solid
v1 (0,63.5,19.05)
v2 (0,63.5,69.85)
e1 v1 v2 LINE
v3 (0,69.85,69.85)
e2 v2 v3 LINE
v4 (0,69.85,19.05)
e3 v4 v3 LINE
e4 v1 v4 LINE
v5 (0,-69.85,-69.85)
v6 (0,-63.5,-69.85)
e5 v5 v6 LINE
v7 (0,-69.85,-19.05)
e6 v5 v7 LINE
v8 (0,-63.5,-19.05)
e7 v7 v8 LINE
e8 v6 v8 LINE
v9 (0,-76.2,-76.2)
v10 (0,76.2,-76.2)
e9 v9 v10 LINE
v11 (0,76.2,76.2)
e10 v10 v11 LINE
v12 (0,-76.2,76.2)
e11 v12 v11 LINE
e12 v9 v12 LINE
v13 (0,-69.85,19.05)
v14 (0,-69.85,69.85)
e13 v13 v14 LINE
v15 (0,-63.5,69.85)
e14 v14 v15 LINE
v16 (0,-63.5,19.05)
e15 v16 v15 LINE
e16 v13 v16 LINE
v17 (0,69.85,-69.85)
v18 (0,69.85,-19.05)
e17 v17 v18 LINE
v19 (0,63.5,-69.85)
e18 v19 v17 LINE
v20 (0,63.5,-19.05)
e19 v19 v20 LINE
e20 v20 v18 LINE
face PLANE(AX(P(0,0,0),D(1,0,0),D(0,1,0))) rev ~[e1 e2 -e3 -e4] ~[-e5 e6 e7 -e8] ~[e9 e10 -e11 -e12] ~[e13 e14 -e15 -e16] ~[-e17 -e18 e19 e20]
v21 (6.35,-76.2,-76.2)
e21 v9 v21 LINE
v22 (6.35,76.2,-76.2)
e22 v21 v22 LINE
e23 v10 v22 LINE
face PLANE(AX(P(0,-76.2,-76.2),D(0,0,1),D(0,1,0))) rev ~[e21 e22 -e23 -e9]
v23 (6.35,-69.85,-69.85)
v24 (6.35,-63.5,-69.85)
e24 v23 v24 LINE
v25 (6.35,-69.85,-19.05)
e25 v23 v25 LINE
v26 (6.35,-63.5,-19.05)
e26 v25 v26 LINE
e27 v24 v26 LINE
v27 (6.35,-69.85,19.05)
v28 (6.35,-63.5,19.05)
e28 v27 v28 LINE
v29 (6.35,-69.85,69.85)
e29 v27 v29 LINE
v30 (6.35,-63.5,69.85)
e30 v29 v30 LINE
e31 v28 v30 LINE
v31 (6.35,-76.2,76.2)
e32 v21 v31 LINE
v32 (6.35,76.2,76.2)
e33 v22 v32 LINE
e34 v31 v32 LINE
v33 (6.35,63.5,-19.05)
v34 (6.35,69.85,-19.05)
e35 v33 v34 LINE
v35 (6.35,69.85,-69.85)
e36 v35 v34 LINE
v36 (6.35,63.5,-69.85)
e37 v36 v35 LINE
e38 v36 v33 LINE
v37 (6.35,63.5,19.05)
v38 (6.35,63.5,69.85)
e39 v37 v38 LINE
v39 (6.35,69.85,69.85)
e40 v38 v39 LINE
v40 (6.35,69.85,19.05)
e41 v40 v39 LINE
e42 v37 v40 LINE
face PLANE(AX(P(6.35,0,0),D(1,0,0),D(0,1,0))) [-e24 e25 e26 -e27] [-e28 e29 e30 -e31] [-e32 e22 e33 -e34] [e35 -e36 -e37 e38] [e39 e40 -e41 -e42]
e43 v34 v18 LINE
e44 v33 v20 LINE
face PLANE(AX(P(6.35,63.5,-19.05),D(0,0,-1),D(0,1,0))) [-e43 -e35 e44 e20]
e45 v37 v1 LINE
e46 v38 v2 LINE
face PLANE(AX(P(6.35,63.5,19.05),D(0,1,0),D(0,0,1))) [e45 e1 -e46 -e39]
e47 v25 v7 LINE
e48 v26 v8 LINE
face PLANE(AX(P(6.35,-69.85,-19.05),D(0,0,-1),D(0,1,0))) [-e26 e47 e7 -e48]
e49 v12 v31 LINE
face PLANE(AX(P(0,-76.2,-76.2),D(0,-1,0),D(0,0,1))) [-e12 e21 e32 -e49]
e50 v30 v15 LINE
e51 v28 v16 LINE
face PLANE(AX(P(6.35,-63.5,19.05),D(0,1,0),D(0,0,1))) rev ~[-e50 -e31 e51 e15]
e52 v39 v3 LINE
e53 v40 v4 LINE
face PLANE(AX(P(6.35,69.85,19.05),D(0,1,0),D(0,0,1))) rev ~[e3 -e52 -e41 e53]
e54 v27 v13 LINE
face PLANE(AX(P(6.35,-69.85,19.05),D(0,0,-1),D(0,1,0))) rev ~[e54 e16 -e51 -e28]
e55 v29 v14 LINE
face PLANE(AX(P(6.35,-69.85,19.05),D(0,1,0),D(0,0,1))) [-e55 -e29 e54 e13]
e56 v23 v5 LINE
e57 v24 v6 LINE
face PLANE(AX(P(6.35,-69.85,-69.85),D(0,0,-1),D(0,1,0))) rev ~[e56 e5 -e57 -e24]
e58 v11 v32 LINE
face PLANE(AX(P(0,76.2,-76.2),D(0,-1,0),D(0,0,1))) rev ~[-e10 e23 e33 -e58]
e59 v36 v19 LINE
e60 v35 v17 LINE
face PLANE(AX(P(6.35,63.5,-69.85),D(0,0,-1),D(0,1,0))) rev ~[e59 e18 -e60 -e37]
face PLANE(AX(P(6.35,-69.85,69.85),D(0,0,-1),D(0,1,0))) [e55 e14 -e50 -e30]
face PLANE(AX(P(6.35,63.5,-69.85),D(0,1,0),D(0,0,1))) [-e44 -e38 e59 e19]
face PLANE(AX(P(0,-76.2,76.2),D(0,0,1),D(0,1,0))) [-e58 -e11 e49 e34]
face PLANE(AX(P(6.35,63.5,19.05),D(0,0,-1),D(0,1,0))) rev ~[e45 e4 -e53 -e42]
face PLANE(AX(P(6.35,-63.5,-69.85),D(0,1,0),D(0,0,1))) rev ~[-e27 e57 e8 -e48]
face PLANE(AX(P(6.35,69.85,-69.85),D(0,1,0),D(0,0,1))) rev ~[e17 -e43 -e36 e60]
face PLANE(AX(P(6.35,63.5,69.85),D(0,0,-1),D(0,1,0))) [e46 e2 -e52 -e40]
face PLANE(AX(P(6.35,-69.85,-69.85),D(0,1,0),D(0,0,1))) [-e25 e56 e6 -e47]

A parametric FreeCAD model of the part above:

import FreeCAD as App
import Part
import Sketcher
from FreeCAD import Vector
Q = App.Units.Quantity

doc = App.newDocument("Part")
body = doc.addObject("PartDesign::Body", "Body")

# Sketch on YZ plane
sketch1 = body.newObject("Sketcher::SketchObject", "Sketch")
sketch1.AttachmentSupport = (doc.getObject("YZ_Plane"), [""])
sketch1.MapMode = "FlatFace"
sketch1.addGeometry(Part.LineSegment(Vector(-76, 76, 0), Vector(-76, -76, 0)), False)
sketch1.addGeometry(Part.LineSegment(Vector(-76, -76, 0), Vector(76, -76, 0)), False)
sketch1.addGeometry(Part.LineSegment(Vector(76, -76, 0), Vector(76, 76, 0)), False)
sketch1.addGeometry(Part.LineSegment(Vector(76, 76, 0), Vector(-76, 76, 0)), False)
sketch1.addConstraint(Sketcher.Constraint("Coincident", 0, 2, 1, 1))
sketch1.addConstraint(Sketcher.Constraint("Coincident", 1, 2, 2, 1))
sketch1.addConstraint(Sketcher.Constraint("Coincident", 2, 2, 3, 1))
sketch1.addConstraint(Sketcher.Constraint("Coincident", 3, 2, 0, 1))
sketch1.addConstraint(Sketcher.Constraint("Vertical", 0))
sketch1.addConstraint(Sketcher.Constraint("Horizontal", 1))
sketch1.addConstraint(Sketcher.Constraint("Vertical", 2))
sketch1.addConstraint(Sketcher.Constraint("Horizontal", 3))
sketch1.addConstraint(Sketcher.Constraint("Symmetric", 0, 2, 2, 2, -1, 1))
sketch1.addConstraint(Sketcher.Constraint("Equal", 3, 0))
sketch1.addConstraint(Sketcher.Constraint("DistanceX", 1, 1, 1, 2, Q("6 in")))
pad1 = body.newObject("PartDesign::Pad", "Pad")
pad1.Profile = sketch1
pad1.Length = Q("0.25 in")

# Sketch on YZ plane
sketch2 = body.newObject("Sketcher::SketchObject", "Sketch001")
sketch2.AttachmentSupport = (doc.getObject("YZ_Plane"), [""])
sketch2.MapMode = "FlatFace"
sketch2.AttachmentOffset = App.Placement(Vector(0, 0, 0.25 * 25.4), App.Rotation())
sketch2.addGeometry(Part.LineSegment(Vector(-70, 70, 0), Vector(-70, 19, 0)), False)
sketch2.addGeometry(Part.LineSegment(Vector(-70, 19, 0), Vector(-64, 19, 0)), False)
sketch2.addGeometry(Part.LineSegment(Vector(-64, 19, 0), Vector(-64, 70, 0)), False)
sketch2.addGeometry(Part.LineSegment(Vector(-64, 70, 0), Vector(-70, 70, 0)), False)
sketch2.addGeometry(Part.LineSegment(Vector(64, 70, 0), Vector(64, 19, 0)), False)
sketch2.addGeometry(Part.LineSegment(Vector(64, 19, 0), Vector(70, 19, 0)), False)
sketch2.addGeometry(Part.LineSegment(Vector(70, 19, 0), Vector(70, 70, 0)), False)
sketch2.addGeometry(Part.LineSegment(Vector(70, 70, 0), Vector(64, 70, 0)), False)
sketch2.addGeometry(Part.LineSegment(Vector(-70, -19, 0), Vector(-70, -70, 0)), False)
sketch2.addGeometry(Part.LineSegment(Vector(-70, -70, 0), Vector(-64, -70, 0)), False)
sketch2.addGeometry(Part.LineSegment(Vector(-64, -70, 0), Vector(-64, -19, 0)), False)
sketch2.addGeometry(Part.LineSegment(Vector(-64, -19, 0), Vector(-70, -19, 0)), False)
sketch2.addGeometry(Part.LineSegment(Vector(64, -19, 0), Vector(64, -70, 0)), False)
sketch2.addGeometry(Part.LineSegment(Vector(64, -70, 0), Vector(70, -70, 0)), False)
sketch2.addGeometry(Part.LineSegment(Vector(70, -70, 0), Vector(70, -19, 0)), False)
sketch2.addGeometry(Part.LineSegment(Vector(70, -19, 0), Vector(64, -19, 0)), False)
sketch2.addConstraint(Sketcher.Constraint("Coincident", 0, 2, 1, 1))
sketch2.addConstraint(Sketcher.Constraint("Coincident", 1, 2, 2, 1))
sketch2.addConstraint(Sketcher.Constraint("Coincident", 2, 2, 3, 1))
sketch2.addConstraint(Sketcher.Constraint("Coincident", 3, 2, 0, 1))
sketch2.addConstraint(Sketcher.Constraint("Coincident", 4, 2, 5, 1))
sketch2.addConstraint(Sketcher.Constraint("Coincident", 5, 2, 6, 1))
sketch2.addConstraint(Sketcher.Constraint("Coincident", 6, 2, 7, 1))
sketch2.addConstraint(Sketcher.Constraint("Coincident", 7, 2, 4, 1))
sketch2.addConstraint(Sketcher.Constraint("Coincident", 8, 2, 9, 1))
sketch2.addConstraint(Sketcher.Constraint("Coincident", 9, 2, 10, 1))
sketch2.addConstraint(Sketcher.Constraint("Coincident", 10, 2, 11, 1))
sketch2.addConstraint(Sketcher.Constraint("Coincident", 11, 2, 8, 1))
sketch2.addConstraint(Sketcher.Constraint("Coincident", 12, 2, 13, 1))
sketch2.addConstraint(Sketcher.Constraint("Coincident", 13, 2, 14, 1))
sketch2.addConstraint(Sketcher.Constraint("Coincident", 14, 2, 15, 1))
sketch2.addConstraint(Sketcher.Constraint("Coincident", 15, 2, 12, 1))
sketch2.addConstraint(Sketcher.Constraint("Vertical", 0))
sketch2.addConstraint(Sketcher.Constraint("Horizontal", 1))
sketch2.addConstraint(Sketcher.Constraint("Vertical", 2))
sketch2.addConstraint(Sketcher.Constraint("Horizontal", 3))
sketch2.addConstraint(Sketcher.Constraint("Vertical", 4))
sketch2.addConstraint(Sketcher.Constraint("Horizontal", 5))
sketch2.addConstraint(Sketcher.Constraint("Vertical", 6))
sketch2.addConstraint(Sketcher.Constraint("Horizontal", 7))
sketch2.addConstraint(Sketcher.Constraint("Vertical", 8))
sketch2.addConstraint(Sketcher.Constraint("Horizontal", 9))
sketch2.addConstraint(Sketcher.Constraint("Vertical", 10))
sketch2.addConstraint(Sketcher.Constraint("Horizontal", 11))
sketch2.addConstraint(Sketcher.Constraint("Vertical", 12))
sketch2.addConstraint(Sketcher.Constraint("Horizontal", 13))
sketch2.addConstraint(Sketcher.Constraint("Vertical", 14))
sketch2.addConstraint(Sketcher.Constraint("Horizontal", 15))
sketch2.addConstraint(Sketcher.Constraint("Symmetric", 6, 2, 8, 2, -1, 1))
sketch2.addConstraint(Sketcher.Constraint("Symmetric", 4, 2, 10, 2, -1, 1))
sketch2.addConstraint(Sketcher.Constraint("Symmetric", 2, 2, 12, 2, -1, 1))
sketch2.addConstraint(Sketcher.Constraint("Symmetric", 0, 2, 14, 2, -1, 1))
sketch2.addConstraint(Sketcher.Constraint("Symmetric", 1, 2, 4, 2, -2))
sketch2.addConstraint(Sketcher.Constraint("Symmetric", 3, 2, 6, 2, -2))
sketch2.addConstraint(Sketcher.Constraint("DistanceY", 0, 2, 0, 1, Q("2 in")))
sketch2.addConstraint(Sketcher.Constraint("DistanceX", 1, 2, 4, 2, Q("5 in")))
sketch2.addConstraint(Sketcher.Constraint("DistanceX", 1, 1, 1, 2, Q("0.25 in")))
sketch2.addConstraint(Sketcher.Constraint("DistanceY", 8, 2, 0, 2, Q("3.5 in")))
pocket1 = body.newObject("PartDesign::Pocket", "Pocket")
pocket1.Profile = sketch2
pocket1.Length = Q("1 in")

doc.recompute()
